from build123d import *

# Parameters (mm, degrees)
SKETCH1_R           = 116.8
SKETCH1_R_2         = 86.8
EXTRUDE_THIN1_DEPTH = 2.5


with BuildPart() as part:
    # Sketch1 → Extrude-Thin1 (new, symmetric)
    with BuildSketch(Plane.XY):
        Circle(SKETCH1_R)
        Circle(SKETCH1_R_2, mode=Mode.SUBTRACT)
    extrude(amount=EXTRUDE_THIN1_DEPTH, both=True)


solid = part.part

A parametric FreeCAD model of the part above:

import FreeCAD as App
import Part
import Sketcher
from FreeCAD import Vector
Q = App.Units.Quantity

doc = App.newDocument("Part")
body = doc.addObject("PartDesign::Body", "Body")

sketch1 = body.newObject("Sketcher::SketchObject", "Sketch")
sketch1.AttachmentSupport = (doc.getObject("XY_Plane"), [""])
sketch1.MapMode = "FlatFace"
sketch1.addGeometry([
    Part.Circle(Vector(0, 0, 0), Vector(0, 0, 1), 116.8),
    Part.Circle(Vector(0, 0, 0), Vector(0, 0, 1), 86.8),
], False)
sketch1.addConstraint([
    Sketcher.Constraint("Coincident", 0, 3, -1, 1),
    Sketcher.Constraint("Coincident", 1, 3, -1, 1),
    Sketcher.Constraint("Diameter", 0, Q("233.6 mm")),
    Sketcher.Constraint("Diameter", 1, Q("173.6 mm")),
])
pad1 = body.newObject("PartDesign::Pad", "Pad")
pad1.Profile = sketch1
pad1.Length = 5
pad1.Midplane = True

doc.recompute()
